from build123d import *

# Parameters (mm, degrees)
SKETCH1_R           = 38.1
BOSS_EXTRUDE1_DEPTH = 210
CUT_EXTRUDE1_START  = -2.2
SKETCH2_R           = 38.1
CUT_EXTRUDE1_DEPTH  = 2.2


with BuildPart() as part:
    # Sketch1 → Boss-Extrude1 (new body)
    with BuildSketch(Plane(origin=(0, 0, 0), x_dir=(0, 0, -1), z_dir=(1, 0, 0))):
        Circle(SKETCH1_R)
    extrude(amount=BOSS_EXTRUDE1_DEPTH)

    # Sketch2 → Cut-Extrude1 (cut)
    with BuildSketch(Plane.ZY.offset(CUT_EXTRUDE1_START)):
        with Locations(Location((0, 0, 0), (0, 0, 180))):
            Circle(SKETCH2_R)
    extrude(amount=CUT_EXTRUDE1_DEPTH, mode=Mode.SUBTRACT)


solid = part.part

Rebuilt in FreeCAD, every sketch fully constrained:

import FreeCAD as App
import Part
import Sketcher
from FreeCAD import Vector
Q = App.Units.Quantity

doc = App.newDocument("Part")
body = doc.addObject("PartDesign::Body", "Body")

# Sketch on YZ plane
sketch1 = body.newObject("Sketcher::SketchObject", "Sketch")
sketch1.AttachmentSupport = (doc.getObject("YZ_Plane"), [""])
sketch1.MapMode = "FlatFace"
sketch1.addGeometry(Part.Circle(Vector(0, 0, 0), Vector(0, 0, 1), 38), False)
sketch1.addConstraint(Sketcher.Constraint("Coincident", 0, 3, -1, 1))
sketch1.addConstraint(Sketcher.Constraint("Diameter", 0, Q("76.2 mm")))
pad1 = body.newObject("PartDesign::Pad", "Pad")
pad1.Profile = sketch1
pad1.Length = 210

# Sketch on YZ plane
sketch2 = body.newObject("Sketcher::SketchObject", "Sketch001")
sketch2.AttachmentSupport = (doc.getObject("YZ_Plane"), [""])
sketch2.MapMode = "FlatFace"
sketch2.AttachmentOffset = App.Placement(Vector(0, 0, 2.2), App.Rotation())
sketch2.addGeometry(Part.Circle(Vector(0, 0, 0), Vector(0, 0, 1), 38), False)
sketch2.addConstraint(Sketcher.Constraint("Coincident", 0, 3, -1, 1))
sketch2.addConstraint(Sketcher.Constraint("Diameter", 0, Q("76.2 mm")))
pocket1 = body.newObject("PartDesign::Pocket", "Pocket")
pocket1.Profile = sketch2
pocket1.Length = 2.2

doc.recompute()
